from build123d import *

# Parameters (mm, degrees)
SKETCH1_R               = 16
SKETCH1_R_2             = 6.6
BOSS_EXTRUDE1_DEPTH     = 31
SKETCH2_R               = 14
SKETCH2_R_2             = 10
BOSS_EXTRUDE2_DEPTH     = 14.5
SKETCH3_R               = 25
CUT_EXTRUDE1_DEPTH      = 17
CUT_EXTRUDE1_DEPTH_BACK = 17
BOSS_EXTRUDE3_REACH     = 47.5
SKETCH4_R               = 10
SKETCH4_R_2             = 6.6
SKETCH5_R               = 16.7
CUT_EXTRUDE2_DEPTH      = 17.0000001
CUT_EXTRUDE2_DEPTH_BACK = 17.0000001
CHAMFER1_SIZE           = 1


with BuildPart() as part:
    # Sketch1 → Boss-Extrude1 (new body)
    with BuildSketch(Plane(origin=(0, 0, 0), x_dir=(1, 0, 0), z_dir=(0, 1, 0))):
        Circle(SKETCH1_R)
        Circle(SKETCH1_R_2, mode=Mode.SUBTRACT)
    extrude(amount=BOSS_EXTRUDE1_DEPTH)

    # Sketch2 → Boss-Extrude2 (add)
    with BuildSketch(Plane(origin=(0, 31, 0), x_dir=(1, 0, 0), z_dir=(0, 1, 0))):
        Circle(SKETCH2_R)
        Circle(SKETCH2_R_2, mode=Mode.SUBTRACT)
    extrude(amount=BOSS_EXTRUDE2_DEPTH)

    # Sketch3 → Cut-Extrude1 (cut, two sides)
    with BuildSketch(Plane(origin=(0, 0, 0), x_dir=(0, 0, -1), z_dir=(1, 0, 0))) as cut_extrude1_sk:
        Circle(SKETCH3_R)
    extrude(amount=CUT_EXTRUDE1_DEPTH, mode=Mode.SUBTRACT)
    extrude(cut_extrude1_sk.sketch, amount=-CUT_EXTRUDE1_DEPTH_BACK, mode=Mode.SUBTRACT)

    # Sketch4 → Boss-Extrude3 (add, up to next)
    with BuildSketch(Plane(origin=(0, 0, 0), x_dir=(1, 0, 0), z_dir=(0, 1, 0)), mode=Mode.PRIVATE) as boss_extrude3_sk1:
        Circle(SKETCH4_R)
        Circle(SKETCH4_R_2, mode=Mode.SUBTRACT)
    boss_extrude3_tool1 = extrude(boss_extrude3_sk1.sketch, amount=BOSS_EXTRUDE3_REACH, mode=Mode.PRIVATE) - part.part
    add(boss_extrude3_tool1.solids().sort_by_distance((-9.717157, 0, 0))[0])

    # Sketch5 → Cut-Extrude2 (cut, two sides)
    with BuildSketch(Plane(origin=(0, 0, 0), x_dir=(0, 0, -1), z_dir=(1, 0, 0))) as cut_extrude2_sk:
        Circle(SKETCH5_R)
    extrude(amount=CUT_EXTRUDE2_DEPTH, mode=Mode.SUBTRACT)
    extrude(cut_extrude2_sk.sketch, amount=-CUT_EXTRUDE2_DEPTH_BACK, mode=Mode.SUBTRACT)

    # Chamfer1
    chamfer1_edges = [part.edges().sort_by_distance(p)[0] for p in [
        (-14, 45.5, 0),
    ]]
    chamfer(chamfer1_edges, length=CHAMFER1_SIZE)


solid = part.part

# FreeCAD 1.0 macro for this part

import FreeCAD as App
import Part
import Sketcher


def edges_at(feature, points):
    """Names of the edges that pass closest to the given points."""
    edges = feature.Shape.Edges
    near = lambda p: min(range(len(edges)), key=lambda i: edges[i].distToShape(Part.Vertex(*p))[0])
    return sorted({f"Edge{near(p) + 1}" for p in points})

doc = App.newDocument("Part")
body = doc.addObject("PartDesign::Body", "Body")

# Sketch on XZ plane
sketch1 = doc.addObject("Sketcher::SketchObject", "Sketch")
body.addObject(sketch1)
sketch1.AttachmentSupport = (doc.XZ_Plane, [""])
sketch1.MapMode = "FlatFace"
sketch1.addGeometry([
    Part.Circle(App.Vector(0, 0, 0), App.Vector(0, 0, 1), 16),
    Part.Circle(App.Vector(0, 0, 0), App.Vector(0, 0, 1), 6.6),
], False)
sketch1.addConstraint([
    Sketcher.Constraint("Coincident", 0, 3, -1, 1),
    Sketcher.Constraint("Coincident", 1, 3, -1, 1),
    Sketcher.Constraint("Diameter", 0, 32.0),
    Sketcher.Constraint("Diameter", 1, 13.2),
])
pad1 = doc.addObject("PartDesign::Pad", "Pad")
body.addObject(pad1)
pad1.Profile = sketch1
pad1.Length = 31
pad1.Reversed = True

# Sketch on XZ plane
sketch2 = doc.addObject("Sketcher::SketchObject", "Sketch001")
body.addObject(sketch2)
sketch2.AttachmentSupport = (doc.XZ_Plane, [""])
sketch2.MapMode = "FlatFace"
sketch2.AttachmentOffset = App.Placement(App.Vector(0, 0, -31), App.Rotation())
sketch2.addGeometry([
    Part.Circle(App.Vector(0, 0, 0), App.Vector(0, 0, 1), 14),
    Part.Circle(App.Vector(0, 0, 0), App.Vector(0, 0, 1), 10),
], False)
sketch2.addConstraint([
    Sketcher.Constraint("Coincident", 0, 3, -1, 1),
    Sketcher.Constraint("Coincident", 1, 3, -1, 1),
    Sketcher.Constraint("Diameter", 0, 28.0),
    Sketcher.Constraint("Diameter", 1, 20.0),
])
pad2 = doc.addObject("PartDesign::Pad", "Pad001")
body.addObject(pad2)
pad2.Profile = sketch2
pad2.Length = 14.5
pad2.Reversed = True

# Sketch on YZ plane
sketch3 = doc.addObject("Sketcher::SketchObject", "Sketch002")
body.addObject(sketch3)
sketch3.AttachmentSupport = (doc.YZ_Plane, [""])
sketch3.MapMode = "FlatFace"
sketch3.addGeometry(Part.Circle(App.Vector(0, 0, 0), App.Vector(0, 0, 1), 25), False)
sketch3.addConstraint([
    Sketcher.Constraint("Coincident", 0, 3, -1, 1),
    Sketcher.Constraint("Diameter", 0, 50.0),
])
pocket1 = doc.addObject("PartDesign::Pocket", "Pocket")
body.addObject(pocket1)
pocket1.Profile = sketch3
pocket1.Type = "ThroughAll"
pocket1.Midplane = True

# Sketch on XZ plane
sketch4 = doc.addObject("Sketcher::SketchObject", "Sketch003")
body.addObject(sketch4)
sketch4.AttachmentSupport = (doc.XZ_Plane, [""])
sketch4.MapMode = "FlatFace"
sketch4.addGeometry([
    Part.Circle(App.Vector(0, 0, 0), App.Vector(0, 0, 1), 10),
    Part.Circle(App.Vector(0, 0, 0), App.Vector(0, 0, 1), 6.6),
], False)
sketch4.addConstraint([
    Sketcher.Constraint("Coincident", 0, 3, -1, 1),
    Sketcher.Constraint("Coincident", 1, 3, -1, 1),
    Sketcher.Constraint("Diameter", 0, 20.0),
    Sketcher.Constraint("Diameter", 1, 13.2),
])
pad3 = doc.addObject("PartDesign::Pad", "Pad002")
body.addObject(pad3)
pad3.Profile = sketch4
pad3.Length = 25
pad3.Reversed = True

# Sketch on YZ plane
sketch5 = doc.addObject("Sketcher::SketchObject", "Sketch004")
body.addObject(sketch5)
sketch5.AttachmentSupport = (doc.YZ_Plane, [""])
sketch5.MapMode = "FlatFace"
sketch5.addGeometry(Part.Circle(App.Vector(0, 0, 0), App.Vector(0, 0, 1), 16.7), False)
sketch5.addConstraint([
    Sketcher.Constraint("Coincident", 0, 3, -1, 1),
    Sketcher.Constraint("Diameter", 0, 33.4),
])
pocket2 = doc.addObject("PartDesign::Pocket", "Pocket001")
body.addObject(pocket2)
pocket2.Profile = sketch5
pocket2.Type = "ThroughAll"
pocket2.Midplane = True
doc.recompute()

chamfer = doc.addObject("PartDesign::Chamfer", "Chamfer")
body.addObject(chamfer)
chamfer.Base = (pocket2, edges_at(pocket2, [(-14, 45.5, 0)]))
chamfer.Size = 1

doc.recompute()
